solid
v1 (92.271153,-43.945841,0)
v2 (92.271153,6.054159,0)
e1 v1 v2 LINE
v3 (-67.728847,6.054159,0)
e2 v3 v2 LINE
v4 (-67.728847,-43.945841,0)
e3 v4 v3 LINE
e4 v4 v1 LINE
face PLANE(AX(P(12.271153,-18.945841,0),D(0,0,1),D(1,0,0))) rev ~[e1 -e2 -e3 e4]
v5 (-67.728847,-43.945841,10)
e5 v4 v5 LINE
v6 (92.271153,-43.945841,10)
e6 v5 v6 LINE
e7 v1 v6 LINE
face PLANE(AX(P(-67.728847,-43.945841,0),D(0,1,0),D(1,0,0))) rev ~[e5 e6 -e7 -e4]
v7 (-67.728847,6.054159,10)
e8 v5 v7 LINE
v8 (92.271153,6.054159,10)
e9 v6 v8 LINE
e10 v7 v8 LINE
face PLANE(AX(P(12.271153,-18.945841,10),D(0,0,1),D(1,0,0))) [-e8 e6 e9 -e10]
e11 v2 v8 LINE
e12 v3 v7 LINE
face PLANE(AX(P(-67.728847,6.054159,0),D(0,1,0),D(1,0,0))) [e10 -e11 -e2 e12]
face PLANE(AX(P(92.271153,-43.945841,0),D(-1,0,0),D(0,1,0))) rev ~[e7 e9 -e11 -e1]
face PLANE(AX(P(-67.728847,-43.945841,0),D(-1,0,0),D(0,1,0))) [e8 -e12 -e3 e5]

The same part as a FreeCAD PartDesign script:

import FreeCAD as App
import Part
import Sketcher

V = App.Vector
Q = App.Units.Quantity


def add_polygon(sketch, points):
    """Adds a closed chain of lines whose ends are joined by coincident constraints."""
    first, n = sketch.GeometryCount, len(points)
    for a, b in zip(points, points[1:] + points[:1]):
        sketch.addGeometry(Part.LineSegment(App.Vector(*a, 0), App.Vector(*b, 0)), False)
    for i in range(n):
        sketch.addConstraint(Sketcher.Constraint("Coincident", first + i, 2, first + (i + 1) % n, 1))

doc = App.newDocument("Part")
body = doc.addObject("PartDesign::Body", "Body")

# Sketch on XY plane
sketch1 = doc.addObject("Sketcher::SketchObject", "Sketch")
body.addObject(sketch1)
sketch1.AttachmentSupport = (doc.XY_Plane, [""])
sketch1.MapMode = "FlatFace"
add_polygon(sketch1, [(-67.728847, 6.054159), (-67.728847, -43.945841), (92.271153, -43.945841), (92.271153, 6.054159)])  # lines 0-3
sketch1.addConstraint([
    Sketcher.Constraint("Vertical", 0),
    Sketcher.Constraint("Horizontal", 1),
    Sketcher.Constraint("Vertical", 2),
    Sketcher.Constraint("Horizontal", 3),
    Sketcher.Constraint("DistanceX", 1, 1, 1, 2, Q("160 mm")),
    Sketcher.Constraint("DistanceY", 0, 2, 0, 1, Q("50 mm")),
    Sketcher.Constraint("DistanceY", 0, 2, -1, 1, Q("43.945841 mm")),
    Sketcher.Constraint("DistanceX", 0, 2, -1, 1, Q("67.728847 mm")),
])
pad1 = doc.addObject("PartDesign::Pad", "Pad")
body.addObject(pad1)
pad1.Profile = sketch1
pad1.Length = 10

doc.recompute()
